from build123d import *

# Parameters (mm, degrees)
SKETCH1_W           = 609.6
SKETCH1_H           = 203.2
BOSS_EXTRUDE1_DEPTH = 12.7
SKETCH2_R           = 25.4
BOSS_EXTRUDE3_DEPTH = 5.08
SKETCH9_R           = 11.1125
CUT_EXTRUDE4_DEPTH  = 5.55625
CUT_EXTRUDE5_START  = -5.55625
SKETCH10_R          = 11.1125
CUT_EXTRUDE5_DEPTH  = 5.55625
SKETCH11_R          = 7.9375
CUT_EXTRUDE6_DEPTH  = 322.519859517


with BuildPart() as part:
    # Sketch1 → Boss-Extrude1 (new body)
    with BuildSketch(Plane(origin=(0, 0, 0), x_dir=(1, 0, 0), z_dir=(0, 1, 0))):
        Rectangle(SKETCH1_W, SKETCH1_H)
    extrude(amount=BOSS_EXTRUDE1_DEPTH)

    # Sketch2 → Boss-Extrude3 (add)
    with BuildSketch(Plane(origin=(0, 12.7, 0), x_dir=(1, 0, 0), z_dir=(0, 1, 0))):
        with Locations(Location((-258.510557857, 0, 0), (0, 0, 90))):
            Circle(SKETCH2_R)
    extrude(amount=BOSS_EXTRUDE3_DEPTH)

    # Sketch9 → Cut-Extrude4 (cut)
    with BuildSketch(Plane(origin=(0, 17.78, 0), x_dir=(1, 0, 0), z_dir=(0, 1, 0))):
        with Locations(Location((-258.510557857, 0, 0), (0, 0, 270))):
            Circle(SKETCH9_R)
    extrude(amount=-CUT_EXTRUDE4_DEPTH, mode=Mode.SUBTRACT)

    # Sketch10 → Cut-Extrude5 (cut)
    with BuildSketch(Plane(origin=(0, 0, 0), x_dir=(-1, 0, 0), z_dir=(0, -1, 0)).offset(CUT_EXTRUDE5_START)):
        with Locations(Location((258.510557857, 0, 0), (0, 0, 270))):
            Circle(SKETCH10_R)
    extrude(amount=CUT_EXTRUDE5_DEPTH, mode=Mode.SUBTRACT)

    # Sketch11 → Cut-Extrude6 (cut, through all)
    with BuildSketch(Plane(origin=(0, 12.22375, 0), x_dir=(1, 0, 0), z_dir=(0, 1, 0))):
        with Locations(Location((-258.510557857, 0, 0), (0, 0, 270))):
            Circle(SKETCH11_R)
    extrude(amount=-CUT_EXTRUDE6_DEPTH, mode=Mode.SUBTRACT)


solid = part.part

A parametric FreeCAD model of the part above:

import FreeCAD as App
import Part
import Sketcher
Q = App.Units.Quantity


def add_polygon(sketch, points):
    """Adds a closed chain of lines whose ends are joined by coincident constraints."""
    first, n = sketch.GeometryCount, len(points)
    for a, b in zip(points, points[1:] + points[:1]):
        sketch.addGeometry(Part.LineSegment(App.Vector(*a, 0), App.Vector(*b, 0)), False)
    for i in range(n):
        sketch.addConstraint(Sketcher.Constraint("Coincident", first + i, 2, first + (i + 1) % n, 1))

doc = App.newDocument("Part")
body = doc.addObject("PartDesign::Body", "Body")

sketch1 = doc.addObject("Sketcher::SketchObject", "Sketch")
body.addObject(sketch1)
sketch1.AttachmentSupport = (doc.XZ_Plane, [""])
sketch1.MapMode = "FlatFace"
add_polygon(sketch1, [(-304.8, -101.6), (-304.8, 101.6), (304.8, 101.6), (304.8, -101.6)])
sketch1.addConstraint(Sketcher.Constraint("Vertical", 0))
sketch1.addConstraint(Sketcher.Constraint("Horizontal", 1))
sketch1.addConstraint(Sketcher.Constraint("Vertical", 2))
sketch1.addConstraint(Sketcher.Constraint("Horizontal", 3))
sketch1.addConstraint(Sketcher.Constraint("Symmetric", 0, 2, 2, 2, -1, 1))
sketch1.addConstraint(Sketcher.Constraint("DistanceX", 1, 1, 1, 2, Q("24 in")))
sketch1.addConstraint(Sketcher.Constraint("DistanceY", 0, 1, 0, 2, Q("8 in")))
pad1 = doc.addObject("PartDesign::Pad", "Pad")
body.addObject(pad1)
pad1.Profile = sketch1
pad1.Length = Q("0.5 in")
pad1.Reversed = True

sketch2 = doc.addObject("Sketcher::SketchObject", "Sketch001")
body.addObject(sketch2)
sketch2.AttachmentSupport = (doc.XZ_Plane, [""])
sketch2.MapMode = "FlatFace"
sketch2.AttachmentOffset = App.Placement(App.Vector(0, 0, -0.5 * 25.4), App.Rotation())
sketch2.addGeometry(Part.Circle(App.Vector(-258.510558, 0, 0), App.Vector(0, 0, 1), 25.4), False)
sketch2.addConstraint(Sketcher.Constraint("PointOnObject", 0, 3, -1))
sketch2.addConstraint(Sketcher.Constraint("Diameter", 0, Q("2 in")))
sketch2.addConstraint(Sketcher.Constraint("DistanceX", 0, 3, -1, 1, Q("258.510558 mm")))
pad2 = doc.addObject("PartDesign::Pad", "Pad001")
body.addObject(pad2)
pad2.Profile = sketch2
pad2.Length = Q("0.2 in")
pad2.Reversed = True

sketch3 = doc.addObject("Sketcher::SketchObject", "Sketch002")
body.addObject(sketch3)
sketch3.AttachmentSupport = (doc.XZ_Plane, [""])
sketch3.MapMode = "FlatFace"
sketch3.AttachmentOffset = App.Placement(App.Vector(0, 0, -0.7 * 25.4), App.Rotation())
sketch3.addGeometry(Part.Circle(App.Vector(-258.510558, 0, 0), App.Vector(0, 0, 1), 11.1125), False)
sketch3.addConstraint(Sketcher.Constraint("PointOnObject", 0, 3, -1))
sketch3.addConstraint(Sketcher.Constraint("Diameter", 0, Q("0.875 in")))
sketch3.addConstraint(Sketcher.Constraint("DistanceX", 0, 3, -1, 1, Q("258.510558 mm")))
pocket1 = doc.addObject("PartDesign::Pocket", "Pocket")
body.addObject(pocket1)
pocket1.Profile = sketch3
pocket1.Length = Q("0.21875 in")
pocket1.Reversed = True

sketch4 = doc.addObject("Sketcher::SketchObject", "Sketch003")
body.addObject(sketch4)
sketch4.AttachmentSupport = (doc.XZ_Plane, [""])
sketch4.MapMode = "FlatFace"
sketch4.AttachmentOffset = App.Placement(App.Vector(0, 0, -0.21875 * 25.4), App.Rotation())
sketch4.addGeometry(Part.Circle(App.Vector(-258.510558, 0, 0), App.Vector(0, 0, 1), 11.1125), False)
sketch4.addConstraint(Sketcher.Constraint("PointOnObject", 0, 3, -1))
sketch4.addConstraint(Sketcher.Constraint("Diameter", 0, Q("0.875 in")))
sketch4.addConstraint(Sketcher.Constraint("DistanceX", 0, 3, -1, 1, Q("258.510558 mm")))
pocket2 = doc.addObject("PartDesign::Pocket", "Pocket001")
body.addObject(pocket2)
pocket2.Profile = sketch4
pocket2.Length = Q("0.21875 in")
pocket2.Reversed = True

sketch5 = doc.addObject("Sketcher::SketchObject", "Sketch004")
body.addObject(sketch5)
sketch5.AttachmentSupport = (doc.XZ_Plane, [""])
sketch5.MapMode = "FlatFace"
sketch5.AttachmentOffset = App.Placement(App.Vector(0, 0, -12.22375), App.Rotation())
sketch5.addGeometry(Part.Circle(App.Vector(-258.510558, 0, 0), App.Vector(0, 0, 1), 7.9375), False)
sketch5.addConstraint(Sketcher.Constraint("PointOnObject", 0, 3, -1))
sketch5.addConstraint(Sketcher.Constraint("Diameter", 0, Q("0.625 in")))
sketch5.addConstraint(Sketcher.Constraint("DistanceX", 0, 3, -1, 1, Q("258.510558 mm")))
pocket3 = doc.addObject("PartDesign::Pocket", "Pocket002")
body.addObject(pocket3)
pocket3.Profile = sketch5
pocket3.Type = "ThroughAll"
pocket3.Reversed = True

doc.recompute()
